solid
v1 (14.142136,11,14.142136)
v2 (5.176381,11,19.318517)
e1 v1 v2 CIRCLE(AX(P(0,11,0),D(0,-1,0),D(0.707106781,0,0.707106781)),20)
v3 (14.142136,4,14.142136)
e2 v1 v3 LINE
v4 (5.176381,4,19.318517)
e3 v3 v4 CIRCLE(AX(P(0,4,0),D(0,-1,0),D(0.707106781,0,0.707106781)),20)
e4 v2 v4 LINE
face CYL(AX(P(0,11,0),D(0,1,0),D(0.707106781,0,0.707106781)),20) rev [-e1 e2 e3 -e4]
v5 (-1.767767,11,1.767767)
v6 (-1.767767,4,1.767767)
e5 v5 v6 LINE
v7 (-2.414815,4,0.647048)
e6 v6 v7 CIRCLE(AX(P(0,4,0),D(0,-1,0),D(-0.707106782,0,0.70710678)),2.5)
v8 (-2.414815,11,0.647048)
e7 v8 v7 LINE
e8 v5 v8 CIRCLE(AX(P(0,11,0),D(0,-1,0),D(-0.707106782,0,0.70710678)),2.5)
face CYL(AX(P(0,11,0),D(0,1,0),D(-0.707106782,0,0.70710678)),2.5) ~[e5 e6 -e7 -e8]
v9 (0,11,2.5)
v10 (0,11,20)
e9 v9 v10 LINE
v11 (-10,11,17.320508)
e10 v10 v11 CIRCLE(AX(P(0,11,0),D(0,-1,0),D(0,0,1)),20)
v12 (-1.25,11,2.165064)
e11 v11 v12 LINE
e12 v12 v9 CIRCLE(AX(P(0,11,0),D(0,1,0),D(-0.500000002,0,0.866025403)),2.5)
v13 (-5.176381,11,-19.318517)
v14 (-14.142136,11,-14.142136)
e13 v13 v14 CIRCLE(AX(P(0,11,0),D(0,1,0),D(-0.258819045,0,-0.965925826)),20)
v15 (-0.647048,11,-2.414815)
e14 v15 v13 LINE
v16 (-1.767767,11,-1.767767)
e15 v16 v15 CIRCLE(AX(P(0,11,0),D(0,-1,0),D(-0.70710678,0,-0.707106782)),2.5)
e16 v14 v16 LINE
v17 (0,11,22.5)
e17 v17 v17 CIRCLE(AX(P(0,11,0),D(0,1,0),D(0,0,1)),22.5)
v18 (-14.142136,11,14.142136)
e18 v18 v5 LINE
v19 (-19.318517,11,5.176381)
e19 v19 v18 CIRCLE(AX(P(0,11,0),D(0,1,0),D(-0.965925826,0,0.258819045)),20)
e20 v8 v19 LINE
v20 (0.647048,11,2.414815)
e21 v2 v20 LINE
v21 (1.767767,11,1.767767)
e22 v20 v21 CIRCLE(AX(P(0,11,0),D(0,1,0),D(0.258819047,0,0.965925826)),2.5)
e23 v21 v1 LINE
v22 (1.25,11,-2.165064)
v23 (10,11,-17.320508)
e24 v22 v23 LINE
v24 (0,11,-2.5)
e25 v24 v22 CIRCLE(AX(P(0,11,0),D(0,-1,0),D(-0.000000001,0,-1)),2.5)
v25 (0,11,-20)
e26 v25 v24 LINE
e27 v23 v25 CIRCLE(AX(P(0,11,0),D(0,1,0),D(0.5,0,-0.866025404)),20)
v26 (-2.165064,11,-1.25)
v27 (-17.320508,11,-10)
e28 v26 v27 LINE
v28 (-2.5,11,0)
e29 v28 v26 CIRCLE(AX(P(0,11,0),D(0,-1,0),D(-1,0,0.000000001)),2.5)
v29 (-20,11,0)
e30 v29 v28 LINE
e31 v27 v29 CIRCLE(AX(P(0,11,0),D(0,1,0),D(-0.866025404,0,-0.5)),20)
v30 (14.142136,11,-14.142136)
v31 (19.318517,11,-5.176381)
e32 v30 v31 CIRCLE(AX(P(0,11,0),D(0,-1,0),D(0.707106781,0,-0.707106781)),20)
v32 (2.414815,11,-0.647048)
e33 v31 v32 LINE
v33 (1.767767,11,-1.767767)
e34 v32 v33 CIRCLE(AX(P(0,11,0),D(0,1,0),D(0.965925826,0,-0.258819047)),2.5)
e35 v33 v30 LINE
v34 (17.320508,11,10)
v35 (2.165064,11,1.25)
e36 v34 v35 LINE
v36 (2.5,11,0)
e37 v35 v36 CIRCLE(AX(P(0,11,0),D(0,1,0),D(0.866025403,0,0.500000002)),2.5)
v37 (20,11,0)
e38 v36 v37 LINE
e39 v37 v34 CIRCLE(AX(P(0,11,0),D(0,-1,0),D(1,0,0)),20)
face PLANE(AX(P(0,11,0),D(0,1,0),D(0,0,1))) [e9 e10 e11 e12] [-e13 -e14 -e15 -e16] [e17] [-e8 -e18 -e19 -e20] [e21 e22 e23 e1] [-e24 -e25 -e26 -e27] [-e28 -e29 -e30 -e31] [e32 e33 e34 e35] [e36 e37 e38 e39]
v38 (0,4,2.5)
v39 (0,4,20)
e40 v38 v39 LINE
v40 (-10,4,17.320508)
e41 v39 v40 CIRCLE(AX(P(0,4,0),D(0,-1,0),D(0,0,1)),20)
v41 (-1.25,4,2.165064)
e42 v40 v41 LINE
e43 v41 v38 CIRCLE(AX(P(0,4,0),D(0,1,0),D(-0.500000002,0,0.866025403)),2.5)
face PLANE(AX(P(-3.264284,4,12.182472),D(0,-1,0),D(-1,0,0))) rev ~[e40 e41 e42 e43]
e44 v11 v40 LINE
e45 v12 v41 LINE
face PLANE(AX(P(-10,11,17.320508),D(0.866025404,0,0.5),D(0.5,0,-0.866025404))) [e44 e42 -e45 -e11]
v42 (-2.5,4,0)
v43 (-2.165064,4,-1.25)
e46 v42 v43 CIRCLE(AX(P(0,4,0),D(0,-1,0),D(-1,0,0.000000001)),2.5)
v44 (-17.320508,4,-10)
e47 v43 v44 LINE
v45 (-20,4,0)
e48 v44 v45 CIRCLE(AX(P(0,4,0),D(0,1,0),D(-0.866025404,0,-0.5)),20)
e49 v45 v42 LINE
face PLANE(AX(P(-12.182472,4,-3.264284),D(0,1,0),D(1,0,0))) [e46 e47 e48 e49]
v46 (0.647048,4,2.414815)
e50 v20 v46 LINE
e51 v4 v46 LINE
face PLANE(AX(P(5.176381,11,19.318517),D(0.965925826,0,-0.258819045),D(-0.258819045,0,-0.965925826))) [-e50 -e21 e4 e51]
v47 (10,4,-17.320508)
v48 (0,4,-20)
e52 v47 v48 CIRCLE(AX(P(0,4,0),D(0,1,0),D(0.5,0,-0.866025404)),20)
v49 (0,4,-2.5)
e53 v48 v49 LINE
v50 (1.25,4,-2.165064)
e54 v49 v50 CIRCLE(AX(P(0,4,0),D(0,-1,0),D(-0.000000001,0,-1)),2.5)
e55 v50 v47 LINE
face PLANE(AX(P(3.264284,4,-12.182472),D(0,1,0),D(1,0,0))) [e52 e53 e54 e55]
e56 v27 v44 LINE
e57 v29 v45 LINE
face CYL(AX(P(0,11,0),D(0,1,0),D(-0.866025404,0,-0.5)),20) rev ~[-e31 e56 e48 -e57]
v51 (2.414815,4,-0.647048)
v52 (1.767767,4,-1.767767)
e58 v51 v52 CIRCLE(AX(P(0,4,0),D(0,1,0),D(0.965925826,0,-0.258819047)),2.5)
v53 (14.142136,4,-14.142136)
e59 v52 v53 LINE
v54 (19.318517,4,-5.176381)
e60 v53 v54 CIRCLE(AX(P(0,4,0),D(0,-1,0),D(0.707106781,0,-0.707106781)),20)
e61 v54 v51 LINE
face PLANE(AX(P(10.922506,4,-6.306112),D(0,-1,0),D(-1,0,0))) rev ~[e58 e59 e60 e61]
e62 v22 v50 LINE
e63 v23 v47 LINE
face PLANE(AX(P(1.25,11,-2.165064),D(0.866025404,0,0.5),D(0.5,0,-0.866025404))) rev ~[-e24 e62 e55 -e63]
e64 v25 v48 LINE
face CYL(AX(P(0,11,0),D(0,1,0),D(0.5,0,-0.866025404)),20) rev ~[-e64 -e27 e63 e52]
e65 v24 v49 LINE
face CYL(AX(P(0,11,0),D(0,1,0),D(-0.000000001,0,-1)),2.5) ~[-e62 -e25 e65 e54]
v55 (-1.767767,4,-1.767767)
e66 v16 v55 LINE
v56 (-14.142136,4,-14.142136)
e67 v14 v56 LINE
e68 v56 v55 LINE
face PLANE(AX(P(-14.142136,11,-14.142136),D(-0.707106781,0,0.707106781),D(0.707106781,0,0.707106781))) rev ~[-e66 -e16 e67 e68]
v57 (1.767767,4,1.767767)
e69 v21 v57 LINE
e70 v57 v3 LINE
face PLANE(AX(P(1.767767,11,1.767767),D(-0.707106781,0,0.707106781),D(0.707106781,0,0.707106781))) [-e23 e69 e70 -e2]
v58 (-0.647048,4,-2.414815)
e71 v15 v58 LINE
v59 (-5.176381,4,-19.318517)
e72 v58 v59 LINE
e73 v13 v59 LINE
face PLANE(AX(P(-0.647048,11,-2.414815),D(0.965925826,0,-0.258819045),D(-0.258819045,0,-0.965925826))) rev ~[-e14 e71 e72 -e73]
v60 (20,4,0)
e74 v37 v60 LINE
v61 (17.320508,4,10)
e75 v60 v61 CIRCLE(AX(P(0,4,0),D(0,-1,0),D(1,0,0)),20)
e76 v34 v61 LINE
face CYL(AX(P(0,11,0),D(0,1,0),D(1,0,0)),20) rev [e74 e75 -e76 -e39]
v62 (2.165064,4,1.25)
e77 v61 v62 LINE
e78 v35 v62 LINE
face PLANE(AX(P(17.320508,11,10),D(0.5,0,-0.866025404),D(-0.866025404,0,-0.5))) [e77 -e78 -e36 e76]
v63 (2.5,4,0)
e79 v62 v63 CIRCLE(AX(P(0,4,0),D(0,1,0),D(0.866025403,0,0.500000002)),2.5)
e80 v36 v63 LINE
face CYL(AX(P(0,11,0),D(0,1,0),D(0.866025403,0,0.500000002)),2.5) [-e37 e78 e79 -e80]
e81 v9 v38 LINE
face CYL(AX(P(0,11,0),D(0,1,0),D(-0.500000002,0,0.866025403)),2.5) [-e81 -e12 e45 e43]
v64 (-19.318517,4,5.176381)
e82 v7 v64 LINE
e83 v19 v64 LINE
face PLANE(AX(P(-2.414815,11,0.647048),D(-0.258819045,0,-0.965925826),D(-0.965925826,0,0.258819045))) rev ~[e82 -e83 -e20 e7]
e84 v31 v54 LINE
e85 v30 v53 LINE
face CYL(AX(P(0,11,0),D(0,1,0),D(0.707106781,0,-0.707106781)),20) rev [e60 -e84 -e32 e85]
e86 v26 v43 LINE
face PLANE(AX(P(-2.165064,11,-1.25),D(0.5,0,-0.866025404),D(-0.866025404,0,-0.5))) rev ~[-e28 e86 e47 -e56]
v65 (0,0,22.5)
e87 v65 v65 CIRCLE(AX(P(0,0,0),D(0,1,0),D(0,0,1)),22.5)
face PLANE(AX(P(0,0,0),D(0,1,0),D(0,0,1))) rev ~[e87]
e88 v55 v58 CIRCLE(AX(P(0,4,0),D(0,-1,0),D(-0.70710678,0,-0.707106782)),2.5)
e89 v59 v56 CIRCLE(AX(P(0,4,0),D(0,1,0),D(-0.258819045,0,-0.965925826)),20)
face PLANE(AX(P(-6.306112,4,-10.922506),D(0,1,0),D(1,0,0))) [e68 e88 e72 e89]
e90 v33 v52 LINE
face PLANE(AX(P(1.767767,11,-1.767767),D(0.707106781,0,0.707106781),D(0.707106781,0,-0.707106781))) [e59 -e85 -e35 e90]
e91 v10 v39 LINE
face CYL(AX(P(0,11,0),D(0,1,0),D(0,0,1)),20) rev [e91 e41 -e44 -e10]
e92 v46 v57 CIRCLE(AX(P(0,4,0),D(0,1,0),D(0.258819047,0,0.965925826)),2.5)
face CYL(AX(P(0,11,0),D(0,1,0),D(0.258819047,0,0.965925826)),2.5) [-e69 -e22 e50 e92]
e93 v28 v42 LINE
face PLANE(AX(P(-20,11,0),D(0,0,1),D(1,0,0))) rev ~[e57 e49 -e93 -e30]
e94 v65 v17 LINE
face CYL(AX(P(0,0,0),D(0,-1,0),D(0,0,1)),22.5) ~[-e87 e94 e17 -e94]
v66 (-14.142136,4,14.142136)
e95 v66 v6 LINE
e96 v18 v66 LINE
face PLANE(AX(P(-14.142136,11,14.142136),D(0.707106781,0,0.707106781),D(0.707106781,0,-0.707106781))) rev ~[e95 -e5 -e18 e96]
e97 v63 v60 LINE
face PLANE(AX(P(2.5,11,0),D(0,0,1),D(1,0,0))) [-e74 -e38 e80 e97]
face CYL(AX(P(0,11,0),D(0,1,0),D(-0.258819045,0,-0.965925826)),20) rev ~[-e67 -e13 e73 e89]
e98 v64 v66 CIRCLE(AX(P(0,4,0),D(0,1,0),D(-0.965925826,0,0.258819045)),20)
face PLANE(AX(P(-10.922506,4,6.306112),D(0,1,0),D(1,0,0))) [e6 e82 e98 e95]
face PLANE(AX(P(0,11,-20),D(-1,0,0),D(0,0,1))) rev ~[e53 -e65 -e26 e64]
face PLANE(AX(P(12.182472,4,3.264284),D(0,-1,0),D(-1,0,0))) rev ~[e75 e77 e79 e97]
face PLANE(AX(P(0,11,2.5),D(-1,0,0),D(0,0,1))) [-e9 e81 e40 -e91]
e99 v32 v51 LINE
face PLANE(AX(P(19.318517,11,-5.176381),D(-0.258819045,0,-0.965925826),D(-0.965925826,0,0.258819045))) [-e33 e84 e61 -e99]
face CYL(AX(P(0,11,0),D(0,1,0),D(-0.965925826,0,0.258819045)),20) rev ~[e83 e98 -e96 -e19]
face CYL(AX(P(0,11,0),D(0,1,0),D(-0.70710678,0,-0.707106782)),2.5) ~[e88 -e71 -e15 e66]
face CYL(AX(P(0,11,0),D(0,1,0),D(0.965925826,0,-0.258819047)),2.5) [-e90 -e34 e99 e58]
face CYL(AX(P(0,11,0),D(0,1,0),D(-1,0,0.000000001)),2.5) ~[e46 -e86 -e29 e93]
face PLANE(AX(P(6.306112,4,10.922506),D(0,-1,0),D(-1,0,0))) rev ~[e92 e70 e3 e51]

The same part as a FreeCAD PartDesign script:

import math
import FreeCAD as App
import Part
import Sketcher
from FreeCAD import Vector
Q = App.Units.Quantity

doc = App.newDocument("Part")
body = doc.addObject("PartDesign::Body", "Body")

sketch1 = doc.addObject("Sketcher::SketchObject", "Sketch")
body.addObject(sketch1)
sketch1.AttachmentSupport = (doc.XZ_Plane, [""])
sketch1.MapMode = "FlatFace"
sketch1.addGeometry(Part.Circle(Vector(0, 0, 0), Vector(0, 0, 1), 22), False)
sketch1.addConstraint(Sketcher.Constraint("Coincident", 0, 3, -1, 1))
sketch1.addConstraint(Sketcher.Constraint("Diameter", 0, 45.0))
pad1 = doc.addObject("PartDesign::Pad", "Pad")
body.addObject(pad1)
pad1.Profile = sketch1
pad1.Length = 11
pad1.Reversed = True

sketch2 = doc.addObject("Sketcher::SketchObject", "Sketch001")
body.addObject(sketch2)
sketch2.AttachmentSupport = (doc.XZ_Plane, [""])
sketch2.MapMode = "FlatFace"
sketch2.AttachmentOffset = App.Placement(Vector(0, 0, -11), App.Rotation())
sketch2.addGeometry(Part.LineSegment(Vector(0, -20, 0), Vector(0, -2.5, 0)), False)
sketch2.addGeometry(Part.ArcOfCircle(Part.Circle(Vector(0, 0, 0), Vector(0, 0, 1), 2.5), math.radians(-90), math.radians(-60)), False)
sketch2.addGeometry(Part.LineSegment(Vector(1.2, -2.2, 0), Vector(10, -17.3, 0)), False)
sketch2.addGeometry(Part.ArcOfCircle(Part.Circle(Vector(0, 0, 0), Vector(0, 0, 1), 20), math.radians(-90), math.radians(-60)), False)
sketch2.addGeometry(Part.LineSegment(Vector(-20, 0, 0), Vector(-2.5, 0, 0)), False)
sketch2.addGeometry(Part.ArcOfCircle(Part.Circle(Vector(0, 0, 0), Vector(0, 0, 1), 2.5), math.radians(180), math.radians(210)), False)
sketch2.addGeometry(Part.LineSegment(Vector(-2.2, -1.2, 0), Vector(-17.3, -10, 0)), False)
sketch2.addGeometry(Part.ArcOfCircle(Part.Circle(Vector(0, 0, 0), Vector(0, 0, 1), 20), math.radians(180), math.radians(210)), False)
sketch2.addGeometry(Part.LineSegment(Vector(-14.1, 14.1, 0), Vector(-1.8, 1.8, 0)), False)
sketch2.addGeometry(Part.ArcOfCircle(Part.Circle(Vector(0, 0, 0), Vector(0, 0, 1), 2.5), math.radians(135), math.radians(165)), False)
sketch2.addGeometry(Part.LineSegment(Vector(-2.4, 0.6, 0), Vector(-19.3, 5.2, 0)), False)
sketch2.addGeometry(Part.ArcOfCircle(Part.Circle(Vector(0, 0, 0), Vector(0, 0, 1), 20), math.radians(135), math.radians(165)), False)
sketch2.addGeometry(Part.LineSegment(Vector(-14.1, -14.1, 0), Vector(-1.8, -1.8, 0)), False)
sketch2.addGeometry(Part.ArcOfCircle(Part.Circle(Vector(0, 0, 0), Vector(0, 0, 1), 2.5), math.radians(-135), math.radians(-105)), False)
sketch2.addGeometry(Part.LineSegment(Vector(-0.6, -2.4, 0), Vector(-5.2, -19.3, 0)), False)
sketch2.addGeometry(Part.ArcOfCircle(Part.Circle(Vector(0, 0, 0), Vector(0, 0, 1), 20), math.radians(-135), math.radians(-105)), False)
sketch2.addGeometry(Part.LineSegment(Vector(0, 20, 0), Vector(0, 2.5, 0)), False)
sketch2.addGeometry(Part.ArcOfCircle(Part.Circle(Vector(0, 0, 0), Vector(0, 0, 1), 2.5), math.radians(90), math.radians(120)), False)
sketch2.addGeometry(Part.LineSegment(Vector(-1.2, 2.2, 0), Vector(-10, 17.3, 0)), False)
sketch2.addGeometry(Part.ArcOfCircle(Part.Circle(Vector(0, 0, 0), Vector(0, 0, 1), 20), math.radians(90), math.radians(120)), False)
sketch2.addGeometry(Part.LineSegment(Vector(14.1, -14.1, 0), Vector(1.8, -1.8, 0)), False)
sketch2.addGeometry(Part.ArcOfCircle(Part.Circle(Vector(0, 0, 0), Vector(0, 0, 1), 2.5), math.radians(-45), math.radians(-15)), False)
sketch2.addGeometry(Part.LineSegment(Vector(2.4, -0.6, 0), Vector(19.3, -5.2, 0)), False)
sketch2.addGeometry(Part.ArcOfCircle(Part.Circle(Vector(0, 0, 0), Vector(0, 0, 1), 20), math.radians(-45), math.radians(-15)), False)
sketch2.addGeometry(Part.LineSegment(Vector(20, 0, 0), Vector(2.5, 0, 0)), False)
sketch2.addGeometry(Part.ArcOfCircle(Part.Circle(Vector(0, 0, 0), Vector(0, 0, 1), 2.5), math.radians(0), math.radians(30)), False)
sketch2.addGeometry(Part.LineSegment(Vector(2.2, 1.2, 0), Vector(17.3, 10, 0)), False)
sketch2.addGeometry(Part.ArcOfCircle(Part.Circle(Vector(0, 0, 0), Vector(0, 0, 1), 20), math.radians(0), math.radians(30)), False)
sketch2.addGeometry(Part.LineSegment(Vector(14.1, 14.1, 0), Vector(1.8, 1.8, 0)), False)
sketch2.addGeometry(Part.ArcOfCircle(Part.Circle(Vector(0, 0, 0), Vector(0, 0, 1), 2.5), math.radians(45), math.radians(75)), False)
sketch2.addGeometry(Part.LineSegment(Vector(0.6, 2.4, 0), Vector(5.2, 19.3, 0)), False)
sketch2.addGeometry(Part.ArcOfCircle(Part.Circle(Vector(0, 0, 0), Vector(0, 0, 1), 20), math.radians(45), math.radians(75)), False)
sketch2.addConstraint(Sketcher.Constraint("Coincident", 0, 2, 1, 1))
sketch2.addConstraint(Sketcher.Constraint("Coincident", 1, 2, 2, 1))
sketch2.addConstraint(Sketcher.Constraint("Coincident", 2, 2, 3, 2))
sketch2.addConstraint(Sketcher.Constraint("Coincident", 3, 1, 0, 1))
sketch2.addConstraint(Sketcher.Constraint("Coincident", 4, 2, 5, 1))
sketch2.addConstraint(Sketcher.Constraint("Coincident", 5, 2, 6, 1))
sketch2.addConstraint(Sketcher.Constraint("Coincident", 6, 2, 7, 2))
sketch2.addConstraint(Sketcher.Constraint("Coincident", 7, 1, 4, 1))
sketch2.addConstraint(Sketcher.Constraint("Coincident", 8, 2, 9, 1))
sketch2.addConstraint(Sketcher.Constraint("Coincident", 9, 2, 10, 1))
sketch2.addConstraint(Sketcher.Constraint("Coincident", 10, 2, 11, 2))
sketch2.addConstraint(Sketcher.Constraint("Coincident", 11, 1, 8, 1))
sketch2.addConstraint(Sketcher.Constraint("Coincident", 12, 2, 13, 1))
sketch2.addConstraint(Sketcher.Constraint("Coincident", 13, 2, 14, 1))
sketch2.addConstraint(Sketcher.Constraint("Coincident", 14, 2, 15, 2))
sketch2.addConstraint(Sketcher.Constraint("Coincident", 15, 1, 12, 1))
sketch2.addConstraint(Sketcher.Constraint("Coincident", 16, 2, 17, 1))
sketch2.addConstraint(Sketcher.Constraint("Coincident", 17, 2, 18, 1))
sketch2.addConstraint(Sketcher.Constraint("Coincident", 18, 2, 19, 2))
sketch2.addConstraint(Sketcher.Constraint("Coincident", 19, 1, 16, 1))
sketch2.addConstraint(Sketcher.Constraint("Coincident", 20, 2, 21, 1))
sketch2.addConstraint(Sketcher.Constraint("Coincident", 21, 2, 22, 1))
sketch2.addConstraint(Sketcher.Constraint("Coincident", 22, 2, 23, 2))
sketch2.addConstraint(Sketcher.Constraint("Coincident", 23, 1, 20, 1))
sketch2.addConstraint(Sketcher.Constraint("Coincident", 24, 2, 25, 1))
sketch2.addConstraint(Sketcher.Constraint("Coincident", 25, 2, 26, 1))
sketch2.addConstraint(Sketcher.Constraint("Coincident", 26, 2, 27, 2))
sketch2.addConstraint(Sketcher.Constraint("Coincident", 27, 1, 24, 1))
sketch2.addConstraint(Sketcher.Constraint("Coincident", 28, 2, 29, 1))
sketch2.addConstraint(Sketcher.Constraint("Coincident", 29, 2, 30, 1))
sketch2.addConstraint(Sketcher.Constraint("Coincident", 30, 2, 31, 2))
sketch2.addConstraint(Sketcher.Constraint("Coincident", 31, 1, 28, 1))
sketch2.addConstraint(Sketcher.Constraint("Vertical", 0))
sketch2.addConstraint(Sketcher.Constraint("Horizontal", 4))
sketch2.addConstraint(Sketcher.Constraint("Vertical", 16))
sketch2.addConstraint(Sketcher.Constraint("Horizontal", 24))
sketch2.addConstraint(Sketcher.Constraint("Coincident", 1, 3, -1, 1))
sketch2.addConstraint(Sketcher.Constraint("Coincident", 3, 3, -1, 1))
sketch2.addConstraint(Sketcher.Constraint("Coincident", 5, 3, -1, 1))
sketch2.addConstraint(Sketcher.Constraint("Coincident", 7, 3, -1, 1))
sketch2.addConstraint(Sketcher.Constraint("Coincident", 9, 3, -1, 1))
sketch2.addConstraint(Sketcher.Constraint("Coincident", 11, 3, -1, 1))
sketch2.addConstraint(Sketcher.Constraint("Coincident", 13, 3, -1, 1))
sketch2.addConstraint(Sketcher.Constraint("Coincident", 15, 3, -1, 1))
sketch2.addConstraint(Sketcher.Constraint("Coincident", 17, 3, -1, 1))
sketch2.addConstraint(Sketcher.Constraint("Coincident", 19, 3, -1, 1))
sketch2.addConstraint(Sketcher.Constraint("Coincident", 21, 3, -1, 1))
sketch2.addConstraint(Sketcher.Constraint("Coincident", 23, 3, -1, 1))
sketch2.addConstraint(Sketcher.Constraint("Coincident", 25, 3, -1, 1))
sketch2.addConstraint(Sketcher.Constraint("Coincident", 27, 3, -1, 1))
sketch2.addConstraint(Sketcher.Constraint("Coincident", 29, 3, -1, 1))
sketch2.addConstraint(Sketcher.Constraint("Coincident", 31, 3, -1, 1))
sketch2.addConstraint(Sketcher.Constraint("Equal", 1, 5))
sketch2.addConstraint(Sketcher.Constraint("Equal", 3, 7))
sketch2.addConstraint(Sketcher.Constraint("Equal", 5, 9))
sketch2.addConstraint(Sketcher.Constraint("Equal", 7, 11))
sketch2.addConstraint(Sketcher.Constraint("Equal", 9, 13))
sketch2.addConstraint(Sketcher.Constraint("Equal", 11, 15))
sketch2.addConstraint(Sketcher.Constraint("Equal", 13, 17))
sketch2.addConstraint(Sketcher.Constraint("Equal", 15, 19))
sketch2.addConstraint(Sketcher.Constraint("Equal", 17, 21))
sketch2.addConstraint(Sketcher.Constraint("Equal", 19, 23))
sketch2.addConstraint(Sketcher.Constraint("Equal", 21, 25))
sketch2.addConstraint(Sketcher.Constraint("Equal", 23, 27))
sketch2.addConstraint(Sketcher.Constraint("Equal", 25, 29))
sketch2.addConstraint(Sketcher.Constraint("Equal", 27, 31))
sketch2.addConstraint(Sketcher.Constraint("PointOnObject", 0, 2, -2))
sketch2.addConstraint(Sketcher.Constraint("PointOnObject", 4, 2, -1))
sketch2.addConstraint(Sketcher.Constraint("PointOnObject", 16, 2, -2))
sketch2.addConstraint(Sketcher.Constraint("PointOnObject", 24, 2, -1))
sketch2.addConstraint(Sketcher.Constraint("Perpendicular", 2, 6))
sketch2.addConstraint(Sketcher.Constraint("Perpendicular", 8, 12))
sketch2.addConstraint(Sketcher.Constraint("Perpendicular", 10, 14))
sketch2.addConstraint(Sketcher.Constraint("Perpendicular", 6, 18))
sketch2.addConstraint(Sketcher.Constraint("Perpendicular", 12, 20))
sketch2.addConstraint(Sketcher.Constraint("Perpendicular", 14, 22))
sketch2.addConstraint(Sketcher.Constraint("Perpendicular", 18, 26))
sketch2.addConstraint(Sketcher.Constraint("Perpendicular", 20, 28))
sketch2.addConstraint(Sketcher.Constraint("Perpendicular", 22, 30))
sketch2.addConstraint(Sketcher.Constraint("Horizontal", 12, 2, 20, 2))
sketch2.addConstraint(Sketcher.Constraint("Horizontal", 15, 1, 23, 1))
sketch2.addConstraint(Sketcher.Constraint("Horizontal", 8, 2, 28, 2))
sketch2.addConstraint(Sketcher.Constraint("Vertical", 8, 2, 12, 2))
sketch2.addConstraint(Sketcher.Constraint("Radius", 3, 20.0))
sketch2.addConstraint(Sketcher.Constraint("Radius", 1, 2.5))
sketch2.addConstraint(Sketcher.Constraint("Angle", 2, Q("-60 deg")))
sketch2.addConstraint(Sketcher.Constraint("Angle", 10, Q("165 deg")))
sketch2.addConstraint(Sketcher.Constraint("DistanceX", -1, 1, 2, 2, 10.0))
sketch2.addConstraint(Sketcher.Constraint("DistanceY", 6, 2, -1, 1, 10.0))
sketch2.addConstraint(Sketcher.Constraint("DistanceX", 18, 2, -1, 1, 10.0))
sketch2.addConstraint(Sketcher.Constraint("DistanceY", -1, 1, 26, 2, 10.0))
sketch2.addConstraint(Sketcher.Constraint("DistanceY", -1, 1, 10, 2, 5.176381))
sketch2.addConstraint(Sketcher.Constraint("DistanceX", 14, 2, -1, 1, 5.176381))
sketch2.addConstraint(Sketcher.Constraint("DistanceY", 22, 2, -1, 1, 5.176381))
sketch2.addConstraint(Sketcher.Constraint("DistanceX", -1, 1, 30, 2, 5.176381))
sketch2.addConstraint(Sketcher.Constraint("DistanceY", 9, 2, 8, 2, 1.120719))
pocket1 = doc.addObject("PartDesign::Pocket", "Pocket")
body.addObject(pocket1)
pocket1.Profile = sketch2
pocket1.Length = 7
pocket1.Reversed = True

doc.recompute()
